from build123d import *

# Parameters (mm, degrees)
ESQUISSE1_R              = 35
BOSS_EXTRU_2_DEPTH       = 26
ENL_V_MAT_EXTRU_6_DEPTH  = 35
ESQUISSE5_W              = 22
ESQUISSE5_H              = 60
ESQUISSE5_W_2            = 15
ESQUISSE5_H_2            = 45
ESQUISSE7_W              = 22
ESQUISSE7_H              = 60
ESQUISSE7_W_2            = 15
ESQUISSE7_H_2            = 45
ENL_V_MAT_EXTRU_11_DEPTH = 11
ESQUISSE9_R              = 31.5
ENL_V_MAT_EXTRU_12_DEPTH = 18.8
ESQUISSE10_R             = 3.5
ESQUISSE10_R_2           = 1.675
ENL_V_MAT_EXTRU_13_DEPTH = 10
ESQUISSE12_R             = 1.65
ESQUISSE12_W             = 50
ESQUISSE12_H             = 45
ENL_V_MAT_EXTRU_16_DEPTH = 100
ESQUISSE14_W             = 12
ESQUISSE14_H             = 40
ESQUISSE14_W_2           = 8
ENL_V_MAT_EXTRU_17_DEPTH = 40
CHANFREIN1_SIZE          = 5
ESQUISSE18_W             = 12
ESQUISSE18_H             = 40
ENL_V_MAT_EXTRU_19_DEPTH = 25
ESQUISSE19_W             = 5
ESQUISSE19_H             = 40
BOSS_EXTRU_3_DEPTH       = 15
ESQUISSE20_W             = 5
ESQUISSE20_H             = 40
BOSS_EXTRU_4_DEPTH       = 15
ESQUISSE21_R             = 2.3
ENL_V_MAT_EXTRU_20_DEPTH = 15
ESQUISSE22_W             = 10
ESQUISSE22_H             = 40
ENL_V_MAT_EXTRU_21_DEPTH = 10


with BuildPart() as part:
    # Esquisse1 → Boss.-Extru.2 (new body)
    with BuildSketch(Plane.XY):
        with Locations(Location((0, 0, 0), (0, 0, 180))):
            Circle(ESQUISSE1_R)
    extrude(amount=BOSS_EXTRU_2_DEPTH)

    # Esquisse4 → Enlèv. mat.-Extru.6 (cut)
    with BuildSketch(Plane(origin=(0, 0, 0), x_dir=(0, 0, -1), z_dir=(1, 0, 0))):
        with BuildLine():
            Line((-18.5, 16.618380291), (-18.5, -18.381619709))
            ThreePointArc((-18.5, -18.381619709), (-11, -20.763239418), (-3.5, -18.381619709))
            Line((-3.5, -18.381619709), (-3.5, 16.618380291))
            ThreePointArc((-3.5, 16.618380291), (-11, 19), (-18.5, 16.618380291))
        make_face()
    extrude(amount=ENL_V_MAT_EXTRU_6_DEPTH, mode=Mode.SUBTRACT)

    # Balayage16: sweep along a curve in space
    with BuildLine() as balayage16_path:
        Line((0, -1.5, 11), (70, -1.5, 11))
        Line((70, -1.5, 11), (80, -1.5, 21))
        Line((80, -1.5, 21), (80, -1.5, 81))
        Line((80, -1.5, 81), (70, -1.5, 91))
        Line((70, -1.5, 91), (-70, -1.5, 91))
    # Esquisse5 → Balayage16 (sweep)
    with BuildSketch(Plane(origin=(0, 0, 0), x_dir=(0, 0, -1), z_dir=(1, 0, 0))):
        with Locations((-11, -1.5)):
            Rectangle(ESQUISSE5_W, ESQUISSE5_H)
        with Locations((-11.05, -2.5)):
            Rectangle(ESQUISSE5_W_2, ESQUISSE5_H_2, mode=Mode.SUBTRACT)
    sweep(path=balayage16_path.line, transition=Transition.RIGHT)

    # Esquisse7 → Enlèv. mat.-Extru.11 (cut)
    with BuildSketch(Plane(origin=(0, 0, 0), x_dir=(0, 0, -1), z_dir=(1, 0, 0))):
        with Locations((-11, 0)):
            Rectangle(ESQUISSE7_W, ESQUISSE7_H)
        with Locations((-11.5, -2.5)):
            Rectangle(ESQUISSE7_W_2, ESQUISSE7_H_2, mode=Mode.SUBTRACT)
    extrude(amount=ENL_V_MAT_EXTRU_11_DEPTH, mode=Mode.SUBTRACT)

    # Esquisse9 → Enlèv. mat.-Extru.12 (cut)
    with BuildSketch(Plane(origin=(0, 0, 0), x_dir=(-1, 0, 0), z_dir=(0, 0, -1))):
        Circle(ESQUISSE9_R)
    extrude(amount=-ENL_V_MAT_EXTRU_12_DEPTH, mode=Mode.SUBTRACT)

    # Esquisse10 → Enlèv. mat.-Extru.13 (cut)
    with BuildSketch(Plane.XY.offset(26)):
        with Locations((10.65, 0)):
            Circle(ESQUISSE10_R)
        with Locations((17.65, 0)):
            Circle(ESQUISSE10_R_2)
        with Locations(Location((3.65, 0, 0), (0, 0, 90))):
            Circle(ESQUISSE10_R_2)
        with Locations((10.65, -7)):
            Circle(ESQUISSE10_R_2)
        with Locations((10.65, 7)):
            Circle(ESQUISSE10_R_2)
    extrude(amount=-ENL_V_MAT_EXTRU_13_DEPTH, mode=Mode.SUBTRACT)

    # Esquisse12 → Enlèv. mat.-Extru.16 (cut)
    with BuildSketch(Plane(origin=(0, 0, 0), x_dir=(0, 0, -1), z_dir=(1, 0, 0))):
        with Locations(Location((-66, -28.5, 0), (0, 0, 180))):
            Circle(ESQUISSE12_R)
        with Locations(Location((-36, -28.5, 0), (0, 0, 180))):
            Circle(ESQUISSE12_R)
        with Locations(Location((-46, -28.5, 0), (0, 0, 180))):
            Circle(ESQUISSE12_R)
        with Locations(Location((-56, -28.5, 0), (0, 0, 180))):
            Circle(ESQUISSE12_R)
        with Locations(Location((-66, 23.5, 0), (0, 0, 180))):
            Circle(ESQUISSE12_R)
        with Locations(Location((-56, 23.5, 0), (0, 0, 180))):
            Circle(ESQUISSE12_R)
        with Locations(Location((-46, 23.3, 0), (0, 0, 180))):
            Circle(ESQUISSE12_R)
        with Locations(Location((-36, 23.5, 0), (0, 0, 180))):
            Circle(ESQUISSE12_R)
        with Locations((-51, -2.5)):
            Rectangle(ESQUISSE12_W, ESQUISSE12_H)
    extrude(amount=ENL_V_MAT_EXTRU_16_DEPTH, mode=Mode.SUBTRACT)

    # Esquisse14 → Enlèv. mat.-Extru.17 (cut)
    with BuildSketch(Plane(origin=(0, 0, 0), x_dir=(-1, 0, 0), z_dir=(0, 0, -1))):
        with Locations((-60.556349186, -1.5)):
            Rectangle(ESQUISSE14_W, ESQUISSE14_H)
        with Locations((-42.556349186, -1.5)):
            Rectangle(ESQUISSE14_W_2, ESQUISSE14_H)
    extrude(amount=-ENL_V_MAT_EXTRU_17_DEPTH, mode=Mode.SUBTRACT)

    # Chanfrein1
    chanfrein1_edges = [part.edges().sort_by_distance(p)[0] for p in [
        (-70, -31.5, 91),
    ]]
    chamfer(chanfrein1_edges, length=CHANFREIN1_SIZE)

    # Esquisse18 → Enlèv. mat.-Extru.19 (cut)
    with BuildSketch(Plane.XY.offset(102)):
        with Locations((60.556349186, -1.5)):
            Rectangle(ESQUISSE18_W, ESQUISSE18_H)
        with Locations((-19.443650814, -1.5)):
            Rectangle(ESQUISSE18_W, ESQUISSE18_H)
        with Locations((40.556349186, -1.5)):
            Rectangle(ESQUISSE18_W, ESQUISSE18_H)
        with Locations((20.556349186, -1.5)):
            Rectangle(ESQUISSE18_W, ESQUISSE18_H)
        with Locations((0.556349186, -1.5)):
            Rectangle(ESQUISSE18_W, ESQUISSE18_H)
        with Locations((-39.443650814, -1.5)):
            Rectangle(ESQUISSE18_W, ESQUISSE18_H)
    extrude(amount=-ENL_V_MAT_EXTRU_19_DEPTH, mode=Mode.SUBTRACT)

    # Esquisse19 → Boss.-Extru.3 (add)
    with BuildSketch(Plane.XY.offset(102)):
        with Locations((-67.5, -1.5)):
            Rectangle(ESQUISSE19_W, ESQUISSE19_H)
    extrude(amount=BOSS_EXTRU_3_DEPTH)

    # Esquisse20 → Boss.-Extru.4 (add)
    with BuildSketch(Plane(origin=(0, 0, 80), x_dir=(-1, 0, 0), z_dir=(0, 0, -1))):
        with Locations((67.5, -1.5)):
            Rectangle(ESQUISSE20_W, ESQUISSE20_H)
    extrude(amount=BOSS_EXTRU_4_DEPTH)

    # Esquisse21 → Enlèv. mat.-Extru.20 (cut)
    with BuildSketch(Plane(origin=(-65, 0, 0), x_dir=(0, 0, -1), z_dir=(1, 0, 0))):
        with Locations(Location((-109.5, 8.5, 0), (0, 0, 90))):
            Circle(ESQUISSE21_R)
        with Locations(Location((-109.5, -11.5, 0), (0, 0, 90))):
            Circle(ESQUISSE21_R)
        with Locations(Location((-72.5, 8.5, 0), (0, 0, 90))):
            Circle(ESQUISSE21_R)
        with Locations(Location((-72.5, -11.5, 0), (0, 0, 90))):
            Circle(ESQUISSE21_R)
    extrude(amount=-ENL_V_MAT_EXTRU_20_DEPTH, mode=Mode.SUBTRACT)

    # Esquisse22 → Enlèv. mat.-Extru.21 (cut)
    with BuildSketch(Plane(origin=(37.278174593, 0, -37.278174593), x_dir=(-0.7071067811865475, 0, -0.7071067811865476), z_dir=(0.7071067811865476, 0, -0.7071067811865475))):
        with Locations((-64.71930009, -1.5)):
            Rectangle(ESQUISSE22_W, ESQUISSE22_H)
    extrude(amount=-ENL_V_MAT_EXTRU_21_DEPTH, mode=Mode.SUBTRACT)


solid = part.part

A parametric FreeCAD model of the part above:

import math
import FreeCAD as App
import Part
import Sketcher


def edges_at(feature, points):
    """Names of the edges that pass closest to the given points."""
    edges = feature.Shape.Edges
    near = lambda p: min(range(len(edges)), key=lambda i: edges[i].distToShape(Part.Vertex(*p))[0])
    return sorted({f"Edge{near(p) + 1}" for p in points})


def add_polygon(sketch, points):
    """Adds a closed chain of lines whose ends are joined by coincident constraints."""
    first, n = sketch.GeometryCount, len(points)
    for a, b in zip(points, points[1:] + points[:1]):
        sketch.addGeometry(Part.LineSegment(App.Vector(*a, 0), App.Vector(*b, 0)), False)
    for i in range(n):
        sketch.addConstraint(Sketcher.Constraint("Coincident", first + i, 2, first + (i + 1) % n, 1))

doc = App.newDocument("Part")
params = doc.addObject("Spreadsheet::Sheet", "Params")
for row, (alias, value) in enumerate([
    ("sketch1_diameter", "70 mm"),
    ("pad1_length", "26 mm"),
    ("sketch2_radius", "13 mm"),
    ("sketch2_width", "35 mm"),
    ("pocket1_length", "35 mm"),
    ("sketch3_width", "60 mm"),
    ("sketch3_width2", "45 mm"),
    ("sketch3_height", "22 mm"),
    ("sketch3_height2", "15 mm"),
    ("sketch4_width", "70 mm"),
    ("sketch4_width2", "140 mm"),
    ("sketch4_height", "60 mm"),
    ("sketch5_width", "60 mm"),
    ("sketch5_width2", "45 mm"),
    ("sketch5_height", "22 mm"),
    ("sketch5_height2", "15 mm"),
    ("pocket2_length", "11 mm"),
    ("sketch6_diameter", "63 mm"),
    ("pocket3_length", "18.8 mm"),
    ("sketch7_diameter", "7 mm"),
    ("sketch7_diameter2", "3.35 mm"),
    ("pocket4_length", "10 mm"),
    ("sketch8_diameter", "3.3 mm"),
    ("sketch8_width", "45 mm"),
    ("sketch8_height", "50 mm"),
    ("pocket5_length", "100 mm"),
    ("sketch9_width", "12 mm"),
    ("sketch9_width2", "8 mm"),
    ("sketch9_height", "40 mm"),
    ("pocket6_length", "40 mm"),
    ("chamfer_size", "5 mm"),
    ("sketch10_width", "12 mm"),
    ("sketch10_height", "40 mm"),
    ("pocket7_length", "25 mm"),
    ("sketch11_width", "5 mm"),
    ("sketch11_height", "40 mm"),
    ("pad2_length", "15 mm"),
    ("sketch12_width", "5 mm"),
    ("sketch12_height", "40 mm"),
    ("pad3_length", "15 mm"),
    ("sketch13_diameter", "4.6 mm"),
    ("pocket8_length", "15 mm"),
    ("sketch14_width", "10 mm"),
    ("sketch14_height", "40 mm"),
    ("pocket9_length", "10 mm"),
], start=1):
    params.set(f"A{row}", alias)
    params.set(f"B{row}", "=" + value)
    params.setAlias(f"B{row}", alias)

body = doc.addObject("PartDesign::Body", "Body")

# Sketch on XY plane
sketch1 = doc.addObject("Sketcher::SketchObject", "Sketch")
body.addObject(sketch1)
sketch1.AttachmentSupport = (doc.XY_Plane, [""])
sketch1.MapMode = "FlatFace"
sketch1.addGeometry(Part.Circle(App.Vector(0, 0, 0), App.Vector(0, 0, 1), 35), False)
sketch1.addConstraint([
    Sketcher.Constraint("Coincident", 0, 3, -1, 1),
    Sketcher.Constraint("Diameter", 0, 70.0),
])
sketch1.setExpression("Constraints[1]", "Params.sketch1_diameter")
pad1 = doc.addObject("PartDesign::Pad", "Pad")
body.addObject(pad1)
pad1.Profile = sketch1
pad1.setExpression("Length", "Params.pad1_length")

# Sketch on YZ plane
sketch2 = doc.addObject("Sketcher::SketchObject", "Sketch001")
body.addObject(sketch2)
sketch2.AttachmentSupport = (doc.YZ_Plane, [""])
sketch2.MapMode = "FlatFace"
sketch2.addGeometry([
    Part.LineSegment(App.Vector(16.61838, 18.5, 0), App.Vector(-18.38162, 18.5, 0)),
    Part.ArcOfCircle(Part.Circle(App.Vector(-7.763239, 11, 0), App.Vector(0, 0, 1), 13), math.radians(144.765582), math.radians(215.234418)),
    Part.LineSegment(App.Vector(-18.38162, 3.5, 0), App.Vector(16.61838, 3.5, 0)),
    Part.ArcOfCircle(Part.Circle(App.Vector(6, 11, 0), App.Vector(0, 0, 1), 13), math.radians(-35.234418), math.radians(35.234418)),
], False)
sketch2.addConstraint([
    Sketcher.Constraint("Coincident", 0, 2, 1, 1),
    Sketcher.Constraint("Coincident", 1, 2, 2, 1),
    Sketcher.Constraint("Coincident", 2, 2, 3, 1),
    Sketcher.Constraint("Coincident", 3, 2, 0, 1),
    Sketcher.Constraint("Horizontal", 0),
    Sketcher.Constraint("Horizontal", 2),
    Sketcher.Constraint("Equal", 1, 3),
    Sketcher.Constraint("Horizontal", 1, 3, 3, 3),
    Sketcher.Constraint("Vertical", 0, 2, 1, 2),
    Sketcher.Constraint("Radius", 1, 13.0),
    Sketcher.Constraint("DistanceX", 0, 2, 0, 1, 35.0),
    Sketcher.Constraint("DistanceY", -1, 1, 1, 3, 11.0),
    Sketcher.Constraint("DistanceX", -1, 1, 3, 3, 6.0),
    Sketcher.Constraint("DistanceY", 1, 2, 0, 2, 15.0),
])
sketch2.setExpression("Constraints[9]", "Params.sketch2_radius")
sketch2.setExpression("Constraints[10]", "Params.sketch2_width")
pocket1 = doc.addObject("PartDesign::Pocket", "Pocket")
body.addObject(pocket1)
pocket1.Profile = sketch2
pocket1.setExpression("Length", "Params.pocket1_length")
pocket1.Reversed = True

# Sketch on YZ plane
sketch3 = doc.addObject("Sketcher::SketchObject", "Sketch002")
body.addObject(sketch3)
sketch3.AttachmentSupport = (doc.YZ_Plane, [""])
sketch3.MapMode = "FlatFace"
add_polygon(sketch3, [(28.5, 22), (-31.5, 22), (-31.5, 0), (28.5, 0)])  # lines 0-3
add_polygon(sketch3, [(-25, 3.55), (-25, 18.55), (20, 18.55), (20, 3.55)])  # lines 4-7
sketch3.addConstraint([
    Sketcher.Constraint("Horizontal", 0),
    Sketcher.Constraint("Vertical", 1),
    Sketcher.Constraint("Horizontal", 2),
    Sketcher.Constraint("Vertical", 3),
    Sketcher.Constraint("Vertical", 4),
    Sketcher.Constraint("Horizontal", 5),
    Sketcher.Constraint("Vertical", 6),
    Sketcher.Constraint("Horizontal", 7),
    Sketcher.Constraint("PointOnObject", 1, 2, -1),
    Sketcher.Constraint("DistanceX", 0, 2, 0, 1, 60.0),
    Sketcher.Constraint("DistanceX", 5, 1, 5, 2, 45.0),
    Sketcher.Constraint("DistanceY", 1, 2, 1, 1, 22.0),
    Sketcher.Constraint("DistanceY", 4, 1, 4, 2, 15.0),
    Sketcher.Constraint("DistanceX", 4, 2, -1, 1, 25.0),
    Sketcher.Constraint("DistanceX", 0, 2, -1, 1, 31.5),
    Sketcher.Constraint("DistanceY", -1, 1, 4, 2, 18.55),
])
sketch3.setExpression("Constraints[17]", "Params.sketch3_width")
sketch3.setExpression("Constraints[18]", "Params.sketch3_width2")
sketch3.setExpression("Constraints[19]", "Params.sketch3_height")
sketch3.setExpression("Constraints[20]", "Params.sketch3_height2")

# Sketch on XZ plane
sketch4 = doc.addObject("Sketcher::SketchObject", "Sketch003")
body.addObject(sketch4)
sketch4.AttachmentSupport = (doc.XZ_Plane, [""])
sketch4.MapMode = "FlatFace"
sketch4.AttachmentOffset = App.Placement(App.Vector(0, 0, 1.5), App.Rotation())
sketch4.addGeometry([
    Part.LineSegment(App.Vector(0, 11, 0), App.Vector(70, 11, 0)),  # 0
    Part.LineSegment(App.Vector(70, 11, 0), App.Vector(80, 21, 0)),  # 1
    Part.LineSegment(App.Vector(80, 21, 0), App.Vector(80, 81, 0)),  # 2
    Part.LineSegment(App.Vector(80, 81, 0), App.Vector(70, 91, 0)),  # 3
    Part.LineSegment(App.Vector(70, 91, 0), App.Vector(-70, 91, 0)),  # 4
], False)
sketch4.addConstraint([
    Sketcher.Constraint("Coincident", 0, 2, 1, 1),
    Sketcher.Constraint("Coincident", 1, 2, 2, 1),
    Sketcher.Constraint("Coincident", 2, 2, 3, 1),
    Sketcher.Constraint("Coincident", 3, 2, 4, 1),
    Sketcher.Constraint("Horizontal", 0),
    Sketcher.Constraint("Vertical", 2),
    Sketcher.Constraint("Horizontal", 4),
    Sketcher.Constraint("PointOnObject", 0, 1, -2),
    Sketcher.Constraint("Perpendicular", 1, 3),
    Sketcher.Constraint("Vertical", 0, 2, 3, 2),
    Sketcher.Constraint("Equal", 1, 3),
    Sketcher.Constraint("DistanceX", 0, 1, 0, 2, 70.0),
    Sketcher.Constraint("DistanceX", 4, 2, 4, 1, 140.0),
    Sketcher.Constraint("DistanceY", 2, 1, 2, 2, 60.0),
    Sketcher.Constraint("DistanceY", -1, 1, 0, 1, 11.0),
    Sketcher.Constraint("DistanceX", -1, 1, 1, 2, 80.0),
])
sketch4.setExpression("Constraints[11]", "Params.sketch4_width")
sketch4.setExpression("Constraints[12]", "Params.sketch4_width2")
sketch4.setExpression("Constraints[13]", "Params.sketch4_height")
doc.recompute()

additivepipe = doc.addObject("PartDesign::AdditivePipe", "AdditivePipe")
body.addObject(additivepipe)
additivepipe.Profile = sketch3
additivepipe.Spine = (sketch4, ["Edge1", "Edge2", "Edge3", "Edge4", "Edge5"])
additivepipe.Transition = "Right corner"

# Sketch on YZ plane
sketch5 = doc.addObject("Sketcher::SketchObject", "Sketch004")
body.addObject(sketch5)
sketch5.AttachmentSupport = (doc.YZ_Plane, [""])
sketch5.MapMode = "FlatFace"
add_polygon(sketch5, [(30, 22), (-30, 22), (-30, 0), (30, 0)])  # lines 0-3
add_polygon(sketch5, [(-25, 4), (-25, 19), (20, 19), (20, 4)])  # lines 4-7
sketch5.addConstraint([
    Sketcher.Constraint("Horizontal", 0),
    Sketcher.Constraint("Vertical", 1),
    Sketcher.Constraint("Horizontal", 2),
    Sketcher.Constraint("Vertical", 3),
    Sketcher.Constraint("Vertical", 4),
    Sketcher.Constraint("Horizontal", 5),
    Sketcher.Constraint("Vertical", 6),
    Sketcher.Constraint("Horizontal", 7),
    Sketcher.Constraint("Symmetric", 1, 2, 2, 2, -1, 1),
    Sketcher.Constraint("DistanceX", 0, 2, 0, 1, 60.0),
    Sketcher.Constraint("DistanceX", 5, 1, 5, 2, 45.0),
    Sketcher.Constraint("DistanceY", 1, 2, 1, 1, 22.0),
    Sketcher.Constraint("DistanceY", 4, 1, 4, 2, 15.0),
    Sketcher.Constraint("DistanceX", 4, 2, -1, 1, 25.0),
    Sketcher.Constraint("DistanceY", -1, 1, 4, 2, 19.0),
])
sketch5.setExpression("Constraints[17]", "Params.sketch5_width")
sketch5.setExpression("Constraints[18]", "Params.sketch5_width2")
sketch5.setExpression("Constraints[19]", "Params.sketch5_height")
sketch5.setExpression("Constraints[20]", "Params.sketch5_height2")
pocket2 = doc.addObject("PartDesign::Pocket", "Pocket001")
body.addObject(pocket2)
pocket2.Profile = sketch5
pocket2.setExpression("Length", "Params.pocket2_length")
pocket2.Reversed = True

# Sketch on XY plane
sketch6 = doc.addObject("Sketcher::SketchObject", "Sketch005")
body.addObject(sketch6)
sketch6.AttachmentSupport = (doc.XY_Plane, [""])
sketch6.MapMode = "FlatFace"
sketch6.addGeometry(Part.Circle(App.Vector(0, 0, 0), App.Vector(0, 0, 1), 31.5), False)
sketch6.addConstraint([
    Sketcher.Constraint("Coincident", 0, 3, -1, 1),
    Sketcher.Constraint("Diameter", 0, 63.0),
])
sketch6.setExpression("Constraints[1]", "Params.sketch6_diameter")
pocket3 = doc.addObject("PartDesign::Pocket", "Pocket002")
body.addObject(pocket3)
pocket3.Profile = sketch6
pocket3.setExpression("Length", "Params.pocket3_length")
pocket3.Reversed = True

# Sketch on XY plane
sketch7 = doc.addObject("Sketcher::SketchObject", "Sketch006")
body.addObject(sketch7)
sketch7.AttachmentSupport = (doc.XY_Plane, [""])
sketch7.MapMode = "FlatFace"
sketch7.AttachmentOffset = App.Placement(App.Vector(0, 0, 26), App.Rotation())
sketch7.addGeometry([
    Part.Circle(App.Vector(10.65, 0, 0), App.Vector(0, 0, 1), 3.5),  # 0
    Part.Circle(App.Vector(17.65, 0, 0), App.Vector(0, 0, 1), 1.675),  # 1
    Part.Circle(App.Vector(3.65, 0, 0), App.Vector(0, 0, 1), 1.675),  # 2
    Part.Circle(App.Vector(10.65, -7, 0), App.Vector(0, 0, 1), 1.675),  # 3
    Part.Circle(App.Vector(10.65, 7, 0), App.Vector(0, 0, 1), 1.675),  # 4
], False)
sketch7.addConstraint([
    Sketcher.Constraint("Equal", 1, 2),
    Sketcher.Constraint("Equal", 2, 3),
    Sketcher.Constraint("Equal", 3, 4),
    Sketcher.Constraint("Symmetric", 3, 3, 4, 3, -1),
    Sketcher.Constraint("PointOnObject", 0, 3, -1),
    Sketcher.Constraint("PointOnObject", 1, 3, -1),
    Sketcher.Constraint("PointOnObject", 2, 3, -1),
    Sketcher.Constraint("Vertical", 0, 3, 3, 3),
    Sketcher.Constraint("Diameter", 0, 7.0),
    Sketcher.Constraint("Diameter", 1, 3.35),
    Sketcher.Constraint("DistanceY", 3, 3, -1, 1, 7.0),
    Sketcher.Constraint("DistanceX", 0, 3, 1, 3, 7.0),
    Sketcher.Constraint("DistanceX", 2, 3, 0, 3, 7.0),
    Sketcher.Constraint("DistanceX", -1, 1, 0, 3, 10.65),
])
sketch7.setExpression("Constraints[8]", "Params.sketch7_diameter")
sketch7.setExpression("Constraints[9]", "Params.sketch7_diameter2")
pocket4 = doc.addObject("PartDesign::Pocket", "Pocket003")
body.addObject(pocket4)
pocket4.Profile = sketch7
pocket4.setExpression("Length", "Params.pocket4_length")

# Sketch on YZ plane
sketch8 = doc.addObject("Sketcher::SketchObject", "Sketch007")
body.addObject(sketch8)
sketch8.AttachmentSupport = (doc.YZ_Plane, [""])
sketch8.MapMode = "FlatFace"
sketch8.addGeometry(Part.Circle(App.Vector(-28.5, 66, 0), App.Vector(0, 0, 1), 1.65), False)  # 0
sketch8.addGeometry(Part.Circle(App.Vector(-28.5, 36, 0), App.Vector(0, 0, 1), 1.65), False)  # 1
sketch8.addGeometry(Part.Circle(App.Vector(-28.5, 46, 0), App.Vector(0, 0, 1), 1.65), False)  # 2
sketch8.addGeometry(Part.Circle(App.Vector(-28.5, 56, 0), App.Vector(0, 0, 1), 1.65), False)  # 3
sketch8.addGeometry(Part.Circle(App.Vector(23.5, 66, 0), App.Vector(0, 0, 1), 1.65), False)  # 4
sketch8.addGeometry(Part.Circle(App.Vector(23.5, 56, 0), App.Vector(0, 0, 1), 1.65), False)  # 5
sketch8.addGeometry(Part.Circle(App.Vector(23.3, 46, 0), App.Vector(0, 0, 1), 1.65), False)  # 6
sketch8.addGeometry(Part.Circle(App.Vector(23.5, 36, 0), App.Vector(0, 0, 1), 1.65), False)  # 7
add_polygon(sketch8, [(20, 76), (-25, 76), (-25, 26), (20, 26)])  # lines 8-11
sketch8.addConstraint([
    Sketcher.Constraint("Horizontal", 8),
    Sketcher.Constraint("Vertical", 9),
    Sketcher.Constraint("Horizontal", 10),
    Sketcher.Constraint("Vertical", 11),
    Sketcher.Constraint("Equal", 0, 1),
    Sketcher.Constraint("Equal", 1, 2),
    Sketcher.Constraint("Equal", 2, 3),
    Sketcher.Constraint("Equal", 3, 4),
    Sketcher.Constraint("Equal", 4, 5),
    Sketcher.Constraint("Equal", 5, 6),
    Sketcher.Constraint("Equal", 6, 7),
    Sketcher.Constraint("Horizontal", 0, 3, 4, 3),
    Sketcher.Constraint("Horizontal", 3, 3, 5, 3),
    Sketcher.Constraint("Horizontal", 2, 3, 6, 3),
    Sketcher.Constraint("Horizontal", 1, 3, 7, 3),
    Sketcher.Constraint("Vertical", 0, 3, 1, 3),
    Sketcher.Constraint("Vertical", 1, 3, 2, 3),
    Sketcher.Constraint("Vertical", 2, 3, 3, 3),
    Sketcher.Constraint("Vertical", 4, 3, 5, 3),
    Sketcher.Constraint("Vertical", 5, 3, 7, 3),
    Sketcher.Constraint("Diameter", 0, 3.3),
    Sketcher.Constraint("DistanceX", 8, 2, 8, 1, 45.0),
    Sketcher.Constraint("DistanceY", 9, 2, 9, 1, 50.0),
    Sketcher.Constraint("DistanceY", -1, 1, 0, 3, 66.0),
    Sketcher.Constraint("DistanceY", -1, 1, 1, 3, 36.0),
    Sketcher.Constraint("DistanceY", -1, 1, 2, 3, 46.0),
    Sketcher.Constraint("DistanceY", -1, 1, 3, 3, 56.0),
    Sketcher.Constraint("DistanceX", 8, 2, -1, 1, 25.0),
    Sketcher.Constraint("DistanceY", -1, 1, 8, 2, 76.0),
    Sketcher.Constraint("DistanceX", 0, 3, 4, 3, 52.0),
    Sketcher.Constraint("DistanceX", 0, 3, -1, 1, 28.5),
    Sketcher.Constraint("DistanceX", -1, 1, 6, 3, 23.3),
])
sketch8.setExpression("Constraints[24]", "Params.sketch8_diameter")
sketch8.setExpression("Constraints[25]", "Params.sketch8_width")
sketch8.setExpression("Constraints[26]", "Params.sketch8_height")
pocket5 = doc.addObject("PartDesign::Pocket", "Pocket004")
body.addObject(pocket5)
pocket5.Profile = sketch8
pocket5.setExpression("Length", "Params.pocket5_length")
pocket5.Reversed = True

# Sketch on XY plane
sketch9 = doc.addObject("Sketcher::SketchObject", "Sketch008")
body.addObject(sketch9)
sketch9.AttachmentSupport = (doc.XY_Plane, [""])
sketch9.MapMode = "FlatFace"
add_polygon(sketch9, [(66.556349, 18.5), (66.556349, -21.5), (54.556349, -21.5), (54.556349, 18.5)])  # lines 0-3
add_polygon(sketch9, [(46.556349, 18.5), (46.556349, -21.5), (38.556349, -21.5), (38.556349, 18.5)])  # lines 4-7
sketch9.addConstraint([
    Sketcher.Constraint("Vertical", 0),
    Sketcher.Constraint("Horizontal", 1),
    Sketcher.Constraint("Vertical", 2),
    Sketcher.Constraint("Horizontal", 3),
    Sketcher.Constraint("Vertical", 4),
    Sketcher.Constraint("Horizontal", 5),
    Sketcher.Constraint("Vertical", 6),
    Sketcher.Constraint("Horizontal", 7),
    Sketcher.Constraint("Horizontal", 1, 2, 4, 2),
    Sketcher.Constraint("Horizontal", 3, 2, 6, 2),
    Sketcher.Constraint("DistanceX", 1, 2, 1, 1, 12.0),
    Sketcher.Constraint("DistanceX", 5, 2, 5, 1, 8.0),
    Sketcher.Constraint("DistanceY", 0, 2, 0, 1, 40.0),
    Sketcher.Constraint("DistanceX", 4, 2, 1, 2, 8.0),
    Sketcher.Constraint("DistanceY", 0, 2, -1, 1, 21.5),
    Sketcher.Constraint("DistanceX", -1, 1, 0, 2, 66.556349),
])
sketch9.setExpression("Constraints[18]", "Params.sketch9_width")
sketch9.setExpression("Constraints[19]", "Params.sketch9_width2")
sketch9.setExpression("Constraints[20]", "Params.sketch9_height")
pocket6 = doc.addObject("PartDesign::Pocket", "Pocket005")
body.addObject(pocket6)
pocket6.Profile = sketch9
pocket6.setExpression("Length", "Params.pocket6_length")
pocket6.Reversed = True
doc.recompute()

chamfer = doc.addObject("PartDesign::Chamfer", "Chamfer")
body.addObject(chamfer)
chamfer.Base = (pocket6, edges_at(pocket6, [(-70, -31.5, 91)]))
chamfer.setExpression("Size", "Params.chamfer_size")

# Sketch on XY plane
sketch10 = doc.addObject("Sketcher::SketchObject", "Sketch009")
body.addObject(sketch10)
sketch10.AttachmentSupport = (doc.XY_Plane, [""])
sketch10.MapMode = "FlatFace"
sketch10.AttachmentOffset = App.Placement(App.Vector(0, 0, 102), App.Rotation())
add_polygon(sketch10, [(54.556349, 18.5), (54.556349, -21.5), (66.556349, -21.5), (66.556349, 18.5)])  # lines 0-3
add_polygon(sketch10, [(-25.443651, 18.5), (-25.443651, -21.5), (-13.443651, -21.5), (-13.443651, 18.5)])  # lines 4-7
add_polygon(sketch10, [(34.556349, 18.5), (34.556349, -21.5), (46.556349, -21.5), (46.556349, 18.5)])  # lines 8-11
add_polygon(sketch10, [(14.556349, 18.5), (14.556349, -21.5), (26.556349, -21.5), (26.556349, 18.5)])  # lines 12-15
add_polygon(sketch10, [(-5.443651, 18.5), (-5.443651, -21.5), (6.556349, -21.5), (6.556349, 18.5)])  # lines 16-19
add_polygon(sketch10, [(-45.443651, 18.5), (-45.443651, -21.5), (-33.443651, -21.5), (-33.443651, 18.5)])  # lines 20-23
sketch10.addConstraint([
    Sketcher.Constraint("Vertical", 0),
    Sketcher.Constraint("Horizontal", 1),
    Sketcher.Constraint("Vertical", 2),
    Sketcher.Constraint("Horizontal", 3),
    Sketcher.Constraint("Vertical", 4),
    Sketcher.Constraint("Horizontal", 5),
    Sketcher.Constraint("Vertical", 6),
    Sketcher.Constraint("Horizontal", 7),
    Sketcher.Constraint("Vertical", 8),
    Sketcher.Constraint("Horizontal", 9),
    Sketcher.Constraint("Vertical", 10),
    Sketcher.Constraint("Horizontal", 11),
    Sketcher.Constraint("Vertical", 12),
    Sketcher.Constraint("Horizontal", 13),
    Sketcher.Constraint("Vertical", 14),
    Sketcher.Constraint("Horizontal", 15),
    Sketcher.Constraint("Vertical", 16),
    Sketcher.Constraint("Horizontal", 17),
    Sketcher.Constraint("Vertical", 18),
    Sketcher.Constraint("Horizontal", 19),
    Sketcher.Constraint("Vertical", 20),
    Sketcher.Constraint("Horizontal", 21),
    Sketcher.Constraint("Vertical", 22),
    Sketcher.Constraint("Horizontal", 23),
    Sketcher.Constraint("Horizontal", 1, 2, 4, 2),
    Sketcher.Constraint("Horizontal", 3, 2, 6, 2),
    Sketcher.Constraint("Horizontal", 5, 2, 8, 2),
    Sketcher.Constraint("Horizontal", 7, 2, 10, 2),
    Sketcher.Constraint("Horizontal", 9, 2, 12, 2),
    Sketcher.Constraint("Horizontal", 11, 2, 14, 2),
    Sketcher.Constraint("Horizontal", 13, 2, 16, 2),
    Sketcher.Constraint("Horizontal", 15, 2, 18, 2),
    Sketcher.Constraint("Horizontal", 17, 2, 20, 2),
    Sketcher.Constraint("Horizontal", 19, 2, 22, 2),
    Sketcher.Constraint("Equal", 3, 5),
    Sketcher.Constraint("Equal", 7, 9),
    Sketcher.Constraint("Equal", 11, 13),
    Sketcher.Constraint("Equal", 15, 17),
    Sketcher.Constraint("Equal", 19, 21),
    Sketcher.Constraint("DistanceX", 1, 1, 1, 2, 12.0),
    Sketcher.Constraint("DistanceY", 0, 2, 0, 1, 40.0),
    Sketcher.Constraint("DistanceX", 4, 2, 0, 2, 80.0),
    Sketcher.Constraint("DistanceX", 8, 2, 0, 2, 20.0),
    Sketcher.Constraint("DistanceX", 12, 2, 8, 2, 20.0),
    Sketcher.Constraint("DistanceX", 5, 2, 16, 2, 8.0),
    Sketcher.Constraint("DistanceX", 20, 2, 4, 2, 20.0),
    Sketcher.Constraint("DistanceY", 0, 2, -1, 1, 21.5),
    Sketcher.Constraint("DistanceX", -1, 1, 0, 2, 54.556349),
])
sketch10.setExpression("Constraints[63]", "Params.sketch10_width")
sketch10.setExpression("Constraints[64]", "Params.sketch10_height")
pocket7 = doc.addObject("PartDesign::Pocket", "Pocket006")
body.addObject(pocket7)
pocket7.Profile = sketch10
pocket7.setExpression("Length", "Params.pocket7_length")

# Sketch on XY plane
sketch11 = doc.addObject("Sketcher::SketchObject", "Sketch010")
body.addObject(sketch11)
sketch11.AttachmentSupport = (doc.XY_Plane, [""])
sketch11.MapMode = "FlatFace"
sketch11.AttachmentOffset = App.Placement(App.Vector(0, 0, 102), App.Rotation())
add_polygon(sketch11, [(-70, 18.5), (-70, -21.5), (-65, -21.5), (-65, 18.5)])  # lines 0-3
sketch11.addConstraint([
    Sketcher.Constraint("Vertical", 0),
    Sketcher.Constraint("Horizontal", 1),
    Sketcher.Constraint("Vertical", 2),
    Sketcher.Constraint("Horizontal", 3),
    Sketcher.Constraint("DistanceX", 1, 1, 1, 2, 5.0),
    Sketcher.Constraint("DistanceY", 0, 2, 0, 1, 40.0),
    Sketcher.Constraint("DistanceX", 0, 2, -1, 1, 70.0),
    Sketcher.Constraint("DistanceY", 0, 2, -1, 1, 21.5),
])
sketch11.setExpression("Constraints[8]", "Params.sketch11_width")
sketch11.setExpression("Constraints[9]", "Params.sketch11_height")
pad2 = doc.addObject("PartDesign::Pad", "Pad001")
body.addObject(pad2)
pad2.Profile = sketch11
pad2.setExpression("Length", "Params.pad2_length")

# Sketch on XY plane
sketch12 = doc.addObject("Sketcher::SketchObject", "Sketch011")
body.addObject(sketch12)
sketch12.AttachmentSupport = (doc.XY_Plane, [""])
sketch12.MapMode = "FlatFace"
sketch12.AttachmentOffset = App.Placement(App.Vector(0, 0, 80), App.Rotation())
add_polygon(sketch12, [(-65, 18.5), (-65, -21.5), (-70, -21.5), (-70, 18.5)])  # lines 0-3
sketch12.addConstraint([
    Sketcher.Constraint("Vertical", 0),
    Sketcher.Constraint("Horizontal", 1),
    Sketcher.Constraint("Vertical", 2),
    Sketcher.Constraint("Horizontal", 3),
    Sketcher.Constraint("DistanceX", 1, 2, 1, 1, 5.0),
    Sketcher.Constraint("DistanceY", 0, 2, 0, 1, 40.0),
    Sketcher.Constraint("DistanceX", 0, 2, -1, 1, 65.0),
    Sketcher.Constraint("DistanceY", 0, 2, -1, 1, 21.5),
])
sketch12.setExpression("Constraints[8]", "Params.sketch12_width")
sketch12.setExpression("Constraints[9]", "Params.sketch12_height")
pad3 = doc.addObject("PartDesign::Pad", "Pad002")
body.addObject(pad3)
pad3.Profile = sketch12
pad3.setExpression("Length", "Params.pad3_length")
pad3.Reversed = True

# Sketch on YZ plane
sketch13 = doc.addObject("Sketcher::SketchObject", "Sketch012")
body.addObject(sketch13)
sketch13.AttachmentSupport = (doc.YZ_Plane, [""])
sketch13.MapMode = "FlatFace"
sketch13.AttachmentOffset = App.Placement(App.Vector(0, 0, -65), App.Rotation())
sketch13.addGeometry([
    Part.Circle(App.Vector(8.5, 109.5, 0), App.Vector(0, 0, 1), 2.3),
    Part.Circle(App.Vector(-11.5, 109.5, 0), App.Vector(0, 0, 1), 2.3),
    Part.Circle(App.Vector(8.5, 72.5, 0), App.Vector(0, 0, 1), 2.3),
    Part.Circle(App.Vector(-11.5, 72.5, 0), App.Vector(0, 0, 1), 2.3),
], False)
sketch13.addConstraint([
    Sketcher.Constraint("Equal", 0, 1),
    Sketcher.Constraint("Equal", 1, 2),
    Sketcher.Constraint("Equal", 2, 3),
    Sketcher.Constraint("Horizontal", 0, 3, 1, 3),
    Sketcher.Constraint("Horizontal", 2, 3, 3, 3),
    Sketcher.Constraint("Vertical", 0, 3, 2, 3),
    Sketcher.Constraint("Vertical", 1, 3, 3, 3),
    Sketcher.Constraint("Diameter", 0, 4.6),
    Sketcher.Constraint("DistanceX", 1, 3, 0, 3, 20.0),
    Sketcher.Constraint("DistanceY", 2, 3, 0, 3, 37.0),
    Sketcher.Constraint("DistanceX", -1, 1, 0, 3, 8.5),
    Sketcher.Constraint("DistanceY", -1, 1, 0, 3, 109.5),
])
sketch13.setExpression("Constraints[7]", "Params.sketch13_diameter")
pocket8 = doc.addObject("PartDesign::Pocket", "Pocket007")
body.addObject(pocket8)
pocket8.Profile = sketch13
pocket8.setExpression("Length", "Params.pocket8_length")

# Sketch on an angled plane
sketch14 = doc.addObject("Sketcher::SketchObject", "Sketch013")
body.addObject(sketch14)
sketch14.Placement = App.Placement(App.Vector(37.278175, 0, -37.278175), App.Rotation(App.Vector(-0.707106781, 0, -0.707106781), App.Vector(0, 0.999999999, 0), App.Vector(0.707106781, 0, -0.707106781), "ZXY"))
add_polygon(sketch14, [(-69.7193, 18.5), (-69.7193, -21.5), (-59.7193, -21.5), (-59.7193, 18.5)])  # lines 0-3
sketch14.addConstraint([
    Sketcher.Constraint("Vertical", 0),
    Sketcher.Constraint("Horizontal", 1),
    Sketcher.Constraint("Vertical", 2),
    Sketcher.Constraint("Horizontal", 3),
    Sketcher.Constraint("DistanceX", 1, 1, 1, 2, 10.0),
    Sketcher.Constraint("DistanceY", 0, 2, 0, 1, 40.0),
    Sketcher.Constraint("DistanceY", 0, 2, -1, 1, 21.5),
    Sketcher.Constraint("DistanceX", 0, 2, -1, 1, 69.7193),
])
sketch14.setExpression("Constraints[8]", "Params.sketch14_width")
sketch14.setExpression("Constraints[9]", "Params.sketch14_height")
pocket9 = doc.addObject("PartDesign::Pocket", "Pocket008")
body.addObject(pocket9)
pocket9.Profile = sketch14
pocket9.setExpression("Length", "Params.pocket9_length")

doc.recompute()
